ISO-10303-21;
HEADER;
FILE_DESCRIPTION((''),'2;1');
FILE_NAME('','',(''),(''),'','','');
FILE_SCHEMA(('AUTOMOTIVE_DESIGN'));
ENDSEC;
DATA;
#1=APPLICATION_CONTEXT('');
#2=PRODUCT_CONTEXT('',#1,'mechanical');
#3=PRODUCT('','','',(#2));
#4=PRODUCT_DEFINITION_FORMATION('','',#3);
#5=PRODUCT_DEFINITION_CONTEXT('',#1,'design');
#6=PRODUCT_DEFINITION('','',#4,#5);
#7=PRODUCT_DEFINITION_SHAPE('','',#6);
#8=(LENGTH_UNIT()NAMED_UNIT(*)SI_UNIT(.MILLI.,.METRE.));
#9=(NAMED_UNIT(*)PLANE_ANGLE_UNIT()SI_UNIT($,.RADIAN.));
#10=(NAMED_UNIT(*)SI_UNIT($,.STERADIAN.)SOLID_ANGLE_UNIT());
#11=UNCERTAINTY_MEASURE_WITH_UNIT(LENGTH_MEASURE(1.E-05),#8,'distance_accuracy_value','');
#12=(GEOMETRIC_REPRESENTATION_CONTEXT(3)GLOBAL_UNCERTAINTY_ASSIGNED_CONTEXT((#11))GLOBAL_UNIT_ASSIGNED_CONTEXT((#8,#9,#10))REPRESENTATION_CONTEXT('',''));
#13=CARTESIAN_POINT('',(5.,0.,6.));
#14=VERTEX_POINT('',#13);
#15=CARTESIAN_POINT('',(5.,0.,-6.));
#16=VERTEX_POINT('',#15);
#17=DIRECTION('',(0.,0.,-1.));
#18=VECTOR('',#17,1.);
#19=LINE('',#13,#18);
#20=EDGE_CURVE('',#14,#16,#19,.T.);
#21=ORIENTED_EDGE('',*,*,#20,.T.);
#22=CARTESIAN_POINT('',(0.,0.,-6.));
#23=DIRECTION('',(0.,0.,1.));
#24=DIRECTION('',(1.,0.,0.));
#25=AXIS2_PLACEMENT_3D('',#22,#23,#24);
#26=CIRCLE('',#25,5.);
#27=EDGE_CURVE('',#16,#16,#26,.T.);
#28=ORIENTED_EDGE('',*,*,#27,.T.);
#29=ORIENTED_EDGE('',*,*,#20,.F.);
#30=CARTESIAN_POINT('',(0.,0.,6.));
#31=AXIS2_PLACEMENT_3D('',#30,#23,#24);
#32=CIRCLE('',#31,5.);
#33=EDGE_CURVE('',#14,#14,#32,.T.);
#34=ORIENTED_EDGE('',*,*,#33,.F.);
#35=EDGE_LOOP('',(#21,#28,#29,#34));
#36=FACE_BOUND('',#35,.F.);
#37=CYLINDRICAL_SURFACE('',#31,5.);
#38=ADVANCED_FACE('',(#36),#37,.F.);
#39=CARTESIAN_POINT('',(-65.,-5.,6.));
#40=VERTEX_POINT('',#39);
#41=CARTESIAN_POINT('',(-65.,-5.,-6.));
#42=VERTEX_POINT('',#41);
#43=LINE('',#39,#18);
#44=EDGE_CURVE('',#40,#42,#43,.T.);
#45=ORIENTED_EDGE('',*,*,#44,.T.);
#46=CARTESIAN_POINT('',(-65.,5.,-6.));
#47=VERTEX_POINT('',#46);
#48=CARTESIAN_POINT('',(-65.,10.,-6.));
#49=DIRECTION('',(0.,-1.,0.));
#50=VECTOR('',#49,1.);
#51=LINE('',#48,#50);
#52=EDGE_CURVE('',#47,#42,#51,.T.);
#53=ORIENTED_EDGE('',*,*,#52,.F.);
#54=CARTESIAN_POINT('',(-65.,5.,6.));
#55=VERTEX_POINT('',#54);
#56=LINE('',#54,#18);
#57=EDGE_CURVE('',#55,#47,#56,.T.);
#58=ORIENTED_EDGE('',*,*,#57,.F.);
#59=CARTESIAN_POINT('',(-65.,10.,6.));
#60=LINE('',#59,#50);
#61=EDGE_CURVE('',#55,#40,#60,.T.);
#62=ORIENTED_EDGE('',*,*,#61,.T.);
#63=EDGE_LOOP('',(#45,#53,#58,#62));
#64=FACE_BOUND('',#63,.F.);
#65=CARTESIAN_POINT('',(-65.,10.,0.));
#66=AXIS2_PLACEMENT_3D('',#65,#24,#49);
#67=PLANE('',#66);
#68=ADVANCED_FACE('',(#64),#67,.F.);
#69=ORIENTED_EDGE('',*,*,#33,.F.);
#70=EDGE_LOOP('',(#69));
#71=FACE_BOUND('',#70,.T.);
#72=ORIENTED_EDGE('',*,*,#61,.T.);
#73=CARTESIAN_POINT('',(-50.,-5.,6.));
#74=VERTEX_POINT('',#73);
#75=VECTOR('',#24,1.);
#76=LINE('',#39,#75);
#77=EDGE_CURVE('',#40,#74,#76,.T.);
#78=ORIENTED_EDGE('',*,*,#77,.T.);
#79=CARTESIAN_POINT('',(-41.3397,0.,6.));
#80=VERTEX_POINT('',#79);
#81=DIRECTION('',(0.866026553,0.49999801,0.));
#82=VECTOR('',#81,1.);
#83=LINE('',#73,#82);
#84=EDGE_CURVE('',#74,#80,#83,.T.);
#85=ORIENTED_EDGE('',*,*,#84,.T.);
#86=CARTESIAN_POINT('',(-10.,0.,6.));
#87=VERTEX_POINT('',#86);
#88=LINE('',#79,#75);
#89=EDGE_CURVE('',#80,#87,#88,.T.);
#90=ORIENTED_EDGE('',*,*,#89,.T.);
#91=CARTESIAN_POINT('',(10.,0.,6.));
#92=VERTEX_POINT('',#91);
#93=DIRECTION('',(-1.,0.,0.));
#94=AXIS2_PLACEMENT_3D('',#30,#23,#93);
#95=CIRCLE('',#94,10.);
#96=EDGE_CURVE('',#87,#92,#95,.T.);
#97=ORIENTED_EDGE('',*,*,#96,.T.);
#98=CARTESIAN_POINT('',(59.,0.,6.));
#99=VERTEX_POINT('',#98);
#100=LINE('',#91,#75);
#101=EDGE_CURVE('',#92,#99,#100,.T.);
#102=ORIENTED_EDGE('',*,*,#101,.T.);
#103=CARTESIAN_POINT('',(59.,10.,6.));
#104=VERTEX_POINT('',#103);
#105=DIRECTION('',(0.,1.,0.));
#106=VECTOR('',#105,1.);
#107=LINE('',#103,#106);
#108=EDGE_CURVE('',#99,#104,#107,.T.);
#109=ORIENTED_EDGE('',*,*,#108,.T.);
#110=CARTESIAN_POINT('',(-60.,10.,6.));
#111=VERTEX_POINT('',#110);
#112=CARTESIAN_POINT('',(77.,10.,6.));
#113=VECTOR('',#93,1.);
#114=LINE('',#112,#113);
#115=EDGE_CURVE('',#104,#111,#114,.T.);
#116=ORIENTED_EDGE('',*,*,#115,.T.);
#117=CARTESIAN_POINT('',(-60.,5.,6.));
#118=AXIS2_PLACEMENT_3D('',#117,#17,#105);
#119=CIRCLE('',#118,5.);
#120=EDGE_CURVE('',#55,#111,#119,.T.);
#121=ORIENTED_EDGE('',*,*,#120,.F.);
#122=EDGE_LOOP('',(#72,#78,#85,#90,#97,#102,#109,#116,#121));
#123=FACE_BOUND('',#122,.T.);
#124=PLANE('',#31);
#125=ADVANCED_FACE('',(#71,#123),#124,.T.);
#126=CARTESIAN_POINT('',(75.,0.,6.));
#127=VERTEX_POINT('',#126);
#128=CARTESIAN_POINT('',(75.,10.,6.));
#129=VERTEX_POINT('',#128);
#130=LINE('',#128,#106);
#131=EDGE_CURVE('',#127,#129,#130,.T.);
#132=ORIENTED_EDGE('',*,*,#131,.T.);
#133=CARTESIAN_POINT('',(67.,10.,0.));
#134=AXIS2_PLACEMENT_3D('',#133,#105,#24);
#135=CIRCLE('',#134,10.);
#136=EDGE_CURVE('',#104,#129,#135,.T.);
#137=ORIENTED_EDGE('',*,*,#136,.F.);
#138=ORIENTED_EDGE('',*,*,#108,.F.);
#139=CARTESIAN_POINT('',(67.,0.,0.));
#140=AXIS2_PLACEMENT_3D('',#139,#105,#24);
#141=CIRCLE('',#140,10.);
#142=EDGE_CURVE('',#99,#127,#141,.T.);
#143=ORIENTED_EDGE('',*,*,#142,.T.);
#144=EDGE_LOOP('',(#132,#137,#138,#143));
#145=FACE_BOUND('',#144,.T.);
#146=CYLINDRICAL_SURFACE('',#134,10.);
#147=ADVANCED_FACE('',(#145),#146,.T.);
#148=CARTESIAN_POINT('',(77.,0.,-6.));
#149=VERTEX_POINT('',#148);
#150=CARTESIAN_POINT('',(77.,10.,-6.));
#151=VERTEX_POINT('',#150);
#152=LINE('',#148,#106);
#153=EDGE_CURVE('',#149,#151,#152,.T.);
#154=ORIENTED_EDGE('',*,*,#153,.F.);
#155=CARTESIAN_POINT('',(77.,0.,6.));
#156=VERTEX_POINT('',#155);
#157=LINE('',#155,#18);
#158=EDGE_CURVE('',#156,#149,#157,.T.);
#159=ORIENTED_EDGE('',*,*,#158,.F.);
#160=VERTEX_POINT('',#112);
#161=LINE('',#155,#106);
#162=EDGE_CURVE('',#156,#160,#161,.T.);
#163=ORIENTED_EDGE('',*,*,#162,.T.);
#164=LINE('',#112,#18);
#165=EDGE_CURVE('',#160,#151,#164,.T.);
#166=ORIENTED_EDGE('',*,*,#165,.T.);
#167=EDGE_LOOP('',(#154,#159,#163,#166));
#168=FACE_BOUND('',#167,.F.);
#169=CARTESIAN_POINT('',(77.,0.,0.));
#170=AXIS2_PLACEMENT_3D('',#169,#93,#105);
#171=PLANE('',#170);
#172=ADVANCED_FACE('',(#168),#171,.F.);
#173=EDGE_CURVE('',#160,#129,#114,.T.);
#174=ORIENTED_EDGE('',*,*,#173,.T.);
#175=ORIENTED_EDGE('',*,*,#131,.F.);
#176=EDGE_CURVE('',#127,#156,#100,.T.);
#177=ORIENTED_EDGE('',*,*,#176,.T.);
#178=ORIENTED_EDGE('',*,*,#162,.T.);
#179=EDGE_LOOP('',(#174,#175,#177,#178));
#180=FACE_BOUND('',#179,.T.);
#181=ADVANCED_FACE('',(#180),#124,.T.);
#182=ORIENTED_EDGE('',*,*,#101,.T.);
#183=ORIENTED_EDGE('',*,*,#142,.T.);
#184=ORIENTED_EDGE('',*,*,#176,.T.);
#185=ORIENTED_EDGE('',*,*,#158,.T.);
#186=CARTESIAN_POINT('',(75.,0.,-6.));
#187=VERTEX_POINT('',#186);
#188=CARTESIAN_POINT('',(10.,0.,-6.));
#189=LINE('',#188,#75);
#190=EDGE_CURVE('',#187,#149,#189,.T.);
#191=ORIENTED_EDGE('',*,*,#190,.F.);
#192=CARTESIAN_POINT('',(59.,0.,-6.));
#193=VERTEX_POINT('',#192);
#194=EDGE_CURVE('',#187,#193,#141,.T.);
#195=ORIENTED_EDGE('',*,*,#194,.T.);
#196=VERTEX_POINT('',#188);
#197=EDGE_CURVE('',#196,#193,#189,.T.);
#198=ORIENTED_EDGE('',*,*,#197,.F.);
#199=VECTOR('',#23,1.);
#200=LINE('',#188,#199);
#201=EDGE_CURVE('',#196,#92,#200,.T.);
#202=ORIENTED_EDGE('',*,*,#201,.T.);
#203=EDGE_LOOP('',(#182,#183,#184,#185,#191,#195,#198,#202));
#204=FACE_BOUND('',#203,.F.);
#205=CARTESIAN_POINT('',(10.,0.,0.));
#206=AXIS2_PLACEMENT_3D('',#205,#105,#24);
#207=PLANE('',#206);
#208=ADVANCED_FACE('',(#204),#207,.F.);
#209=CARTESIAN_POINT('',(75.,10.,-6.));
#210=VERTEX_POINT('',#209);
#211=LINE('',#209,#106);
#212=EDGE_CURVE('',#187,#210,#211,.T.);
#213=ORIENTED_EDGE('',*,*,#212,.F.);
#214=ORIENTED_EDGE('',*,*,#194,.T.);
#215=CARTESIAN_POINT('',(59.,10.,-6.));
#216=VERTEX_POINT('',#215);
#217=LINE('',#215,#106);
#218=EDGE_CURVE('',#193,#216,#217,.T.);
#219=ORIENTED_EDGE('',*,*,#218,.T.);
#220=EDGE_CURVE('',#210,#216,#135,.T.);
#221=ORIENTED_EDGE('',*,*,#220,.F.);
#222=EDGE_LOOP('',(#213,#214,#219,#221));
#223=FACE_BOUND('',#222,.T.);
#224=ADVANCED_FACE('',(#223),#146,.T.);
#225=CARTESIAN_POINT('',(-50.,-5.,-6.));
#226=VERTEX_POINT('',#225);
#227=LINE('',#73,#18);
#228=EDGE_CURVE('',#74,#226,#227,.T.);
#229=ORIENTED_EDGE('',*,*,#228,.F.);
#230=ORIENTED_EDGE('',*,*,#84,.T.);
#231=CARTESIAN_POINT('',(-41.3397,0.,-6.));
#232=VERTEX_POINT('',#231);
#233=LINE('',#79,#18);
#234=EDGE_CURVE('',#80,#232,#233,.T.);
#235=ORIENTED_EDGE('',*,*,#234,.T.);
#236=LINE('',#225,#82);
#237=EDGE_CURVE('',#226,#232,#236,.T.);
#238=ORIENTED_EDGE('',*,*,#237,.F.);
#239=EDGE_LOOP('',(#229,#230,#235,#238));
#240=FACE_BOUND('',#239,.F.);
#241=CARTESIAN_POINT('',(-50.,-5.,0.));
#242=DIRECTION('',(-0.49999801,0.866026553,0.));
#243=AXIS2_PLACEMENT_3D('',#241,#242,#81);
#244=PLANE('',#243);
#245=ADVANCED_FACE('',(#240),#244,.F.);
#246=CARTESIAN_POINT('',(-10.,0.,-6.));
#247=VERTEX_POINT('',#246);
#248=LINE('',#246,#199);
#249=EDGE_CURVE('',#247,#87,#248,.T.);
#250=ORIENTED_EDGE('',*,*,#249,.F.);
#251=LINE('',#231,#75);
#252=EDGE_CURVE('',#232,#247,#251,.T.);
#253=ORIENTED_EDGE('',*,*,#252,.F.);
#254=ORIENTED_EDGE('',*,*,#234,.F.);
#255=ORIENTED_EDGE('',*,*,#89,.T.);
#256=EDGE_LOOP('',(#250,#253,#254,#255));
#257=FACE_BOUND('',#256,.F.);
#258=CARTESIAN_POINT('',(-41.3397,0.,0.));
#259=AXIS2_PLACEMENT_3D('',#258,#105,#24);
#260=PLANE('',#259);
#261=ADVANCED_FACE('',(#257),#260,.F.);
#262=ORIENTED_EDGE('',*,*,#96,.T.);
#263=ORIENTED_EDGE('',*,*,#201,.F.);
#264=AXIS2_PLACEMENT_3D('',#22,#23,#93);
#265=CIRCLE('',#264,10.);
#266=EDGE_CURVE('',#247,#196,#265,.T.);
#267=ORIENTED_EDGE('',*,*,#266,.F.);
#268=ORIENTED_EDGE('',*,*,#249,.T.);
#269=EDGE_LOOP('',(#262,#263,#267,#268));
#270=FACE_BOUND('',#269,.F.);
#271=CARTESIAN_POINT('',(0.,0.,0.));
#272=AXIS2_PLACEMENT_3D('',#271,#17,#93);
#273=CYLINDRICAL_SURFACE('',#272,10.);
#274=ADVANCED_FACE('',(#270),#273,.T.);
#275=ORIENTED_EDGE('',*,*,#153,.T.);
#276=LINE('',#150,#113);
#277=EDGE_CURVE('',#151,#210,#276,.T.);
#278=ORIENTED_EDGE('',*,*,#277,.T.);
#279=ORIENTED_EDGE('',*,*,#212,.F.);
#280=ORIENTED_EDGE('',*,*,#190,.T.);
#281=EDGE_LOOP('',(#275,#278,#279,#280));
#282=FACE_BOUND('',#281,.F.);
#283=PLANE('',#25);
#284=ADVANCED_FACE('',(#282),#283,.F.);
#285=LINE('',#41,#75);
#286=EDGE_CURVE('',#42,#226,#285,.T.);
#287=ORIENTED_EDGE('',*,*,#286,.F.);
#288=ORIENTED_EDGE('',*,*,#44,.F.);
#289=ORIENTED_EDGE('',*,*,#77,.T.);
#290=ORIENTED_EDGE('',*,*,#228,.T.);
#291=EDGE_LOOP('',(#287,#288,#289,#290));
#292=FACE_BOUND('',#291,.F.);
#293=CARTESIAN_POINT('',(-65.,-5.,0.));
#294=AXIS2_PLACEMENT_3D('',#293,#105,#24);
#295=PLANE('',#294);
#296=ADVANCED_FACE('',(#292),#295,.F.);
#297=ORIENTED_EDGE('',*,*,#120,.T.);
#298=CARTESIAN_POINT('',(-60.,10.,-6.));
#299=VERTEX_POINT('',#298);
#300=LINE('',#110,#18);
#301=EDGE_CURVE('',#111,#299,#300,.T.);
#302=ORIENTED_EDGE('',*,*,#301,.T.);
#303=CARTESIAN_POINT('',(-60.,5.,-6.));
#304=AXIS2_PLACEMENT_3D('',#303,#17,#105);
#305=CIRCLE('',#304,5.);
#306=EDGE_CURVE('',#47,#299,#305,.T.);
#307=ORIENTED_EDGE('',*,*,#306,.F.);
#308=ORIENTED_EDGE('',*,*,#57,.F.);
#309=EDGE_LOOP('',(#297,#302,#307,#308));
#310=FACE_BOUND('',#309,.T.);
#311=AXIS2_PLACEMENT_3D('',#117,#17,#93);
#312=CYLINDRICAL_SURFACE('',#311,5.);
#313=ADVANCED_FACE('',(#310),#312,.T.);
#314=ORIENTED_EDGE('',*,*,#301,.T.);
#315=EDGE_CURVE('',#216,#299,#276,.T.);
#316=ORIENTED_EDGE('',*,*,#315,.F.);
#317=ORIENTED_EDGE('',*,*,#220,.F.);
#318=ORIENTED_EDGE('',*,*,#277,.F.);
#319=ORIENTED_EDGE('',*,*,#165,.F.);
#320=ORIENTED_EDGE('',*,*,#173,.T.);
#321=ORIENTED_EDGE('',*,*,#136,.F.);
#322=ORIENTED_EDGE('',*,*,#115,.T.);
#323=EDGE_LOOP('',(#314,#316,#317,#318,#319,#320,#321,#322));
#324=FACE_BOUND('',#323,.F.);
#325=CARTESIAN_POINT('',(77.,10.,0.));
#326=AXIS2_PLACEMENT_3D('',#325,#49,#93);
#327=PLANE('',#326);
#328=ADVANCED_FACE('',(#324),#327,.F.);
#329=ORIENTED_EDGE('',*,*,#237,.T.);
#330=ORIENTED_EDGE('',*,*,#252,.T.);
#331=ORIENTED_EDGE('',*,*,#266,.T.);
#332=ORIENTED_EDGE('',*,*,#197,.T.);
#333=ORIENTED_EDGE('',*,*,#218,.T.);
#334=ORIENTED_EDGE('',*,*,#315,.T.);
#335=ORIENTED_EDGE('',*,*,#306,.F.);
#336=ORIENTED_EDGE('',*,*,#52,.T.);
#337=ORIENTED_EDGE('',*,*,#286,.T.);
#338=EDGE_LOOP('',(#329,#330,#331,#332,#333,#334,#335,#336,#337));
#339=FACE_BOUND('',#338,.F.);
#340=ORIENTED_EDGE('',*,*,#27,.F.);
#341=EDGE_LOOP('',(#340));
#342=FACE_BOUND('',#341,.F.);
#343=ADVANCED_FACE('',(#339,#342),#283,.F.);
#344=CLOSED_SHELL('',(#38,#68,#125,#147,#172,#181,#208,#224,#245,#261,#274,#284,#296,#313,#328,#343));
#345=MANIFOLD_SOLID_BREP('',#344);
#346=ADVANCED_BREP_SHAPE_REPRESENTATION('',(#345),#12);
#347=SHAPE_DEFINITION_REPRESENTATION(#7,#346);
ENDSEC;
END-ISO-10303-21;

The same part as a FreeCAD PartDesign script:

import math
import FreeCAD as App
import Part
import Sketcher

V = App.Vector
Q = App.Units.Quantity


def edges_at(feature, points):
    """Names of the edges that pass closest to the given points."""
    edges = feature.Shape.Edges
    near = lambda p: min(range(len(edges)), key=lambda i: edges[i].distToShape(Part.Vertex(*p))[0])
    return sorted({f"Edge{near(p) + 1}" for p in points})

doc = App.newDocument("Part")
body = doc.addObject("PartDesign::Body", "Body")

# Sketch on XY plane
sketch1 = body.newObject("Sketcher::SketchObject", "Sketch")
sketch1.AttachmentSupport = (doc.getObject("XY_Plane"), [""])
sketch1.MapMode = "FlatFace"
sketch1.addGeometry(Part.LineSegment(V(-41, 0, 0), V(-10, 0, 0)), False)
sketch1.addGeometry(Part.ArcOfCircle(Part.Circle(V(0, 0, 0), V(0, 0, 1), 10), math.radians(180), math.radians(360)), False)
sketch1.addGeometry(Part.LineSegment(V(10, 0, 0), V(77, 0, 0)), False)
sketch1.addGeometry(Part.LineSegment(V(77, 0, 0), V(77, 10, 0)), False)
sketch1.addGeometry(Part.LineSegment(V(77, 10, 0), V(-65, 10, 0)), False)
sketch1.addGeometry(Part.LineSegment(V(-65, 10, 0), V(-65, -5, 0)), False)
sketch1.addGeometry(Part.LineSegment(V(-65, -5, 0), V(-50, -5, 0)), False)
sketch1.addGeometry(Part.LineSegment(V(-50, -5, 0), V(-41, 0, 0)), False)
sketch1.addConstraint(Sketcher.Constraint("Coincident", 0, 2, 1, 1))
sketch1.addConstraint(Sketcher.Constraint("Coincident", 1, 2, 2, 1))
sketch1.addConstraint(Sketcher.Constraint("Coincident", 2, 2, 3, 1))
sketch1.addConstraint(Sketcher.Constraint("Coincident", 3, 2, 4, 1))
sketch1.addConstraint(Sketcher.Constraint("Coincident", 4, 2, 5, 1))
sketch1.addConstraint(Sketcher.Constraint("Coincident", 5, 2, 6, 1))
sketch1.addConstraint(Sketcher.Constraint("Coincident", 6, 2, 7, 1))
sketch1.addConstraint(Sketcher.Constraint("Coincident", 7, 2, 0, 1))
sketch1.addConstraint(Sketcher.Constraint("Horizontal", 0))
sketch1.addConstraint(Sketcher.Constraint("Horizontal", 2))
sketch1.addConstraint(Sketcher.Constraint("Vertical", 3))
sketch1.addConstraint(Sketcher.Constraint("Horizontal", 4))
sketch1.addConstraint(Sketcher.Constraint("Vertical", 5))
sketch1.addConstraint(Sketcher.Constraint("Horizontal", 6))
sketch1.addConstraint(Sketcher.Constraint("Coincident", 1, 3, -1, 1))
sketch1.addConstraint(Sketcher.Constraint("PointOnObject", 0, 2, -1))
sketch1.addConstraint(Sketcher.Constraint("PointOnObject", 1, 2, -1))
sketch1.addConstraint(Sketcher.Constraint("Equal", 6, 5))
sketch1.addConstraint(Sketcher.Constraint("Radius", 1, Q("10 mm")))
sketch1.addConstraint(Sketcher.Constraint("DistanceX", 4, 2, 4, 1, Q("142 mm")))
sketch1.addConstraint(Sketcher.Constraint("DistanceX", 6, 1, 6, 2, Q("15 mm")))
sketch1.addConstraint(Sketcher.Constraint("DistanceY", 3, 1, 3, 2, Q("10 mm")))
sketch1.addConstraint(Sketcher.Constraint("Angle", 7, Q("29.9999 deg")))
sketch1.addConstraint(Sketcher.Constraint("DistanceX", -1, 1, 2, 2, Q("77 mm")))
pad1 = body.newObject("PartDesign::Pad", "Pad")
pad1.Profile = sketch1
pad1.Length = 12
pad1.Midplane = True
doc.recompute()

fillet = body.newObject("PartDesign::Fillet", "Fillet")
fillet.Base = (pad1, edges_at(pad1, [(-65, 10, 0)]))
fillet.Radius = 5

# Sketch on XY plane
sketch2 = body.newObject("Sketcher::SketchObject", "Sketch001")
sketch2.AttachmentSupport = (doc.getObject("XY_Plane"), [""])
sketch2.MapMode = "FlatFace"
sketch2.AttachmentOffset = App.Placement(V(0, 0, 6), App.Rotation())
sketch2.addGeometry(Part.Circle(V(0, 0, 0), V(0, 0, 1), 5), False)
sketch2.addConstraint(Sketcher.Constraint("Coincident", 0, 3, -1, 1))
sketch2.addConstraint(Sketcher.Constraint("Diameter", 0, Q("10 mm")))
pocket1 = body.newObject("PartDesign::Pocket", "Pocket")
pocket1.Profile = sketch2
pocket1.Type = "ThroughAll"

# Sketch on XZ plane
sketch3 = body.newObject("Sketcher::SketchObject", "Sketch002")
sketch3.AttachmentSupport = (doc.getObject("XZ_Plane"), [""])
sketch3.MapMode = "FlatFace"
sketch3.AttachmentOffset = App.Placement(V(0, 0, -10), App.Rotation())
sketch3.addGeometry(Part.Circle(V(67, 0, 0), V(0, 0, 1), 10), False)
sketch3.addConstraint(Sketcher.Constraint("PointOnObject", 0, 3, -1))
sketch3.addConstraint(Sketcher.Constraint("Diameter", 0, Q("20 mm")))
sketch3.addConstraint(Sketcher.Constraint("DistanceX", -1, 1, 0, 3, Q("67 mm")))
pad2 = body.newObject("PartDesign::Pad", "Pad001")
pad2.Profile = sketch3
pad2.Length = 10

doc.recompute()
